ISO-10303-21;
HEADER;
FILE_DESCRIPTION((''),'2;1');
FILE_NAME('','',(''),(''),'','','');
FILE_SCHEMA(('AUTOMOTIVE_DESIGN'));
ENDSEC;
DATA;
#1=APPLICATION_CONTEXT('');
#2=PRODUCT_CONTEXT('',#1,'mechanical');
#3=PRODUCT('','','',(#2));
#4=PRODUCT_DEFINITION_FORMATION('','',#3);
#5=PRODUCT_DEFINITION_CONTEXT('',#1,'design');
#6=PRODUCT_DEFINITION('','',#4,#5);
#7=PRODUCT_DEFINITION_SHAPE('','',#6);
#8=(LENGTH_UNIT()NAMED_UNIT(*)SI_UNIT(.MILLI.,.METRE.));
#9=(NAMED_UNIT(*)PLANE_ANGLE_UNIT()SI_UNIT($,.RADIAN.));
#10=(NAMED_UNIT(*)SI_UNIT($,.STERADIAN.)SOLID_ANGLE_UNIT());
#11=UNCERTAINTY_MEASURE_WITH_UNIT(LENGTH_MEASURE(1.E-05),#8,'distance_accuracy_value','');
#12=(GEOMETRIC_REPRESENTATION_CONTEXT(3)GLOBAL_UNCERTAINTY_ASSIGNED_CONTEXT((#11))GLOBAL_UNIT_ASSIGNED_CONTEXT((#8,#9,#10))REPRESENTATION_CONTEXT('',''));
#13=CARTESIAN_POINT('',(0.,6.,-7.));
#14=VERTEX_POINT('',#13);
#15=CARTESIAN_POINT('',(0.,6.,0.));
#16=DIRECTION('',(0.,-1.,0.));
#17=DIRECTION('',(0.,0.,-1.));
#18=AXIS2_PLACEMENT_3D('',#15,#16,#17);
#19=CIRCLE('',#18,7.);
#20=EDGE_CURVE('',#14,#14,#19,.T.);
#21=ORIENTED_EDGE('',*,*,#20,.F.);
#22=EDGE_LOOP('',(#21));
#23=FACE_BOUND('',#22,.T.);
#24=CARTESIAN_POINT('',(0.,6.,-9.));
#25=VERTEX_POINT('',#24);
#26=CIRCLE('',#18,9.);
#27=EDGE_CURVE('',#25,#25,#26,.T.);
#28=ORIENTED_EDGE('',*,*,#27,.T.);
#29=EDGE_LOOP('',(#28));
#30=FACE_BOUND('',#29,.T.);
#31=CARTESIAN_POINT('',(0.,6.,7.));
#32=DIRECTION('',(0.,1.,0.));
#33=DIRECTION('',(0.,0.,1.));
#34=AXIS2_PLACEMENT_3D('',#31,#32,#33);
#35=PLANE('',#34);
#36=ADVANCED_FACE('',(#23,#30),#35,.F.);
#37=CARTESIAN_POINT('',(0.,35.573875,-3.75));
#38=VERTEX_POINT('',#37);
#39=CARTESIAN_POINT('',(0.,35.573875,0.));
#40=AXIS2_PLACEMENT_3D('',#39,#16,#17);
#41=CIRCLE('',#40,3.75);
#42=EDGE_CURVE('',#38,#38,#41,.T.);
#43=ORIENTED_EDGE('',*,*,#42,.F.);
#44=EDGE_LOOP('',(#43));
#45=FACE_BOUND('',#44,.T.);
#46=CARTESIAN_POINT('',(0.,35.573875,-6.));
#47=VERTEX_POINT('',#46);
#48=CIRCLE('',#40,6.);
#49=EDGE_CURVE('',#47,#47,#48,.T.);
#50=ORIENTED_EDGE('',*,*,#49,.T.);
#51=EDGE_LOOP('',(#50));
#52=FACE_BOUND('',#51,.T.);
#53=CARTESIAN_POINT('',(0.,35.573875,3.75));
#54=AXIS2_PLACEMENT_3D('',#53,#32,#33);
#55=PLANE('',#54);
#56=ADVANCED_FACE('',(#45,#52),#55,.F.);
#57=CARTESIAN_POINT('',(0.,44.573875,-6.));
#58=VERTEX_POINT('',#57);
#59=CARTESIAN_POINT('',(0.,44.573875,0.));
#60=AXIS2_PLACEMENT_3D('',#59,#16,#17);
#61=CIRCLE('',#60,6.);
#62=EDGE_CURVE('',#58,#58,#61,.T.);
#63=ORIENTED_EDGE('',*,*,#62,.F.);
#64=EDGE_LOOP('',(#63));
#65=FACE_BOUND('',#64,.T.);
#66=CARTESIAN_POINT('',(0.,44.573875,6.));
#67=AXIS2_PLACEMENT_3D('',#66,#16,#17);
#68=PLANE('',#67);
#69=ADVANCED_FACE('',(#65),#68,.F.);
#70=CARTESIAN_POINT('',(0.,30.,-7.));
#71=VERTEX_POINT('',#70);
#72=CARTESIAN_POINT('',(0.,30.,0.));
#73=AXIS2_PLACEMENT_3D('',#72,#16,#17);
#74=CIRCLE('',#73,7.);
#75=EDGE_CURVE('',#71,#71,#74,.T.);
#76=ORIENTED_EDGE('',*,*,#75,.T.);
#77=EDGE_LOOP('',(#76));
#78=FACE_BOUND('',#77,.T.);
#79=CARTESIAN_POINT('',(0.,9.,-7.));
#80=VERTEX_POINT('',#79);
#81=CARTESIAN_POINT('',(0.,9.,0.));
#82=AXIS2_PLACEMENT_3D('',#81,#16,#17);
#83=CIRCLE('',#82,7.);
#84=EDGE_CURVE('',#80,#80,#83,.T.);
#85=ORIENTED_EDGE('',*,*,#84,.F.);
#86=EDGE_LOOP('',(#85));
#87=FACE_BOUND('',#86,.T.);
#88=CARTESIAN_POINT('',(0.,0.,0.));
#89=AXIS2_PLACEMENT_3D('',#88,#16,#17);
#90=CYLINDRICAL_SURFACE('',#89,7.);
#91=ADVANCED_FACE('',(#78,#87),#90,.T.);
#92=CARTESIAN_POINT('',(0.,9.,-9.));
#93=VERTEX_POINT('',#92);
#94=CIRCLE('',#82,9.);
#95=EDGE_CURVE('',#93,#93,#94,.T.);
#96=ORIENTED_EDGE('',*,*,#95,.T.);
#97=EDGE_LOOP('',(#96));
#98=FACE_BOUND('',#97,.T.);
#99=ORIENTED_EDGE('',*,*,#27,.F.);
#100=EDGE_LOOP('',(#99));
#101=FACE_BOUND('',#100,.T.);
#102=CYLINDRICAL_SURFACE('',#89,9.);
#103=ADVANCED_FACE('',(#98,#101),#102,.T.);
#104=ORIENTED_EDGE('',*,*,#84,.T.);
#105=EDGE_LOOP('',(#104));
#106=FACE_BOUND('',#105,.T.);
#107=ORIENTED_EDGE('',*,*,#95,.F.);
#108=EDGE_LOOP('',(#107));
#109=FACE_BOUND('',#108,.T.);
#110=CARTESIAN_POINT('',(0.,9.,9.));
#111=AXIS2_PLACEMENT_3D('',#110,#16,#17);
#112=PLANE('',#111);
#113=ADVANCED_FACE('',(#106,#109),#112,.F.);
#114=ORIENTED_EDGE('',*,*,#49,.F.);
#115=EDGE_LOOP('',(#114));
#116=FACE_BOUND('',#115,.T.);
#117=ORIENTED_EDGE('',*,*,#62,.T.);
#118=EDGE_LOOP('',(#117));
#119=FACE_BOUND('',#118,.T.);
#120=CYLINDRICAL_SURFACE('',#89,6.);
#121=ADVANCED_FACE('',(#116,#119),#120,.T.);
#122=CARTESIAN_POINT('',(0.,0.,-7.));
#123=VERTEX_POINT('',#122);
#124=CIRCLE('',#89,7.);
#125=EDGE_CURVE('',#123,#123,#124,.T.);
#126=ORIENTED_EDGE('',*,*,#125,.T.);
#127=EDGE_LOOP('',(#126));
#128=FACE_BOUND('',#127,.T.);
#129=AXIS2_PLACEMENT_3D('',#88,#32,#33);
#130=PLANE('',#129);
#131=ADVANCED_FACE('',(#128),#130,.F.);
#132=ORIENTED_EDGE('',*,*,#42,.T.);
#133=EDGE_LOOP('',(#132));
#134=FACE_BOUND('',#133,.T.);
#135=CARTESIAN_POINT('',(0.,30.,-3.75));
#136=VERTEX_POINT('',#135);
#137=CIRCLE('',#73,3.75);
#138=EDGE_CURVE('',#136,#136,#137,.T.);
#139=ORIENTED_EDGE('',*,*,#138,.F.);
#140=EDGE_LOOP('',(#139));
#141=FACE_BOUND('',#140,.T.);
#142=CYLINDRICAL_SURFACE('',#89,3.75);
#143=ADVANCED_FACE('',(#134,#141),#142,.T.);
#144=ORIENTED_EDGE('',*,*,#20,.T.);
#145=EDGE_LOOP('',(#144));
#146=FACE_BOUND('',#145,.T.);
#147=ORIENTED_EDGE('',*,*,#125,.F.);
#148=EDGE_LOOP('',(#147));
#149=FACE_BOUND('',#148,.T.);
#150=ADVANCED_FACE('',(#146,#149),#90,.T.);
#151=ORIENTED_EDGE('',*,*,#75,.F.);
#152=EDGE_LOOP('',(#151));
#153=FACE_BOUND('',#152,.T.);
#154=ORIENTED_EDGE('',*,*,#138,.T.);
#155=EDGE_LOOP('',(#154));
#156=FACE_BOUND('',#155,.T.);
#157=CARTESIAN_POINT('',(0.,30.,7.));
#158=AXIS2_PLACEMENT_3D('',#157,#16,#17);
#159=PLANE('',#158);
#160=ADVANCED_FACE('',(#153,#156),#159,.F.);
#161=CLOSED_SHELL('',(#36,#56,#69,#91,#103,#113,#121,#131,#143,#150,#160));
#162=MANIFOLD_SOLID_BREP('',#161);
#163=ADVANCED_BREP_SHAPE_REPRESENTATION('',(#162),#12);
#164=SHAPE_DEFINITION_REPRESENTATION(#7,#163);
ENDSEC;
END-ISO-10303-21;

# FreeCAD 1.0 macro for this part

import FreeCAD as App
import Part
import Sketcher

doc = App.newDocument("Part")
params = doc.addObject("Spreadsheet::Sheet", "Params")
for row, (alias, value) in enumerate([
    ("sketch1_width", "9 mm"),
    ("sketch1_width2", "21 mm"),
    ("sketch1_width3", "3 mm"),
    ("sketch1_width4", "6 mm"),
    ("sketch1_height", "7 mm"),
    ("revolution_angle", "360 deg"),
], start=1):
    params.set(f"A{row}", alias)
    params.set(f"B{row}", "=" + value)
    params.setAlias(f"B{row}", alias)

body = doc.addObject("PartDesign::Body", "Body")

# Sketch on YZ plane
sketch1 = body.newObject("Sketcher::SketchObject", "Sketch")
sketch1.AttachmentSupport = (doc.getObject("YZ_Plane"), [""])
sketch1.MapMode = "FlatFace"
sketch1.addGeometry(Part.LineSegment(App.Vector(0, 7, 0), App.Vector(0, 0, 0)), False)
sketch1.addGeometry(Part.LineSegment(App.Vector(0, 0, 0), App.Vector(44.6, 0, 0)), False)
sketch1.addGeometry(Part.LineSegment(App.Vector(44.6, 0, 0), App.Vector(44.6, 6, 0)), False)
sketch1.addGeometry(Part.LineSegment(App.Vector(44.6, 6, 0), App.Vector(35.6, 6, 0)), False)
sketch1.addGeometry(Part.LineSegment(App.Vector(35.6, 6, 0), App.Vector(35.6, 3.8, 0)), False)
sketch1.addGeometry(Part.LineSegment(App.Vector(35.6, 3.8, 0), App.Vector(30, 3.8, 0)), False)
sketch1.addGeometry(Part.LineSegment(App.Vector(30, 3.8, 0), App.Vector(30, 7, 0)), False)
sketch1.addGeometry(Part.LineSegment(App.Vector(30, 7, 0), App.Vector(9, 7, 0)), False)
sketch1.addGeometry(Part.LineSegment(App.Vector(9, 7, 0), App.Vector(9, 9, 0)), False)
sketch1.addGeometry(Part.LineSegment(App.Vector(9, 9, 0), App.Vector(6, 9, 0)), False)
sketch1.addGeometry(Part.LineSegment(App.Vector(6, 9, 0), App.Vector(6, 7, 0)), False)
sketch1.addGeometry(Part.LineSegment(App.Vector(6, 7, 0), App.Vector(0, 7, 0)), False)
sketch1.addConstraint(Sketcher.Constraint("Coincident", 0, 2, 1, 1))
sketch1.addConstraint(Sketcher.Constraint("Coincident", 1, 2, 2, 1))
sketch1.addConstraint(Sketcher.Constraint("Coincident", 2, 2, 3, 1))
sketch1.addConstraint(Sketcher.Constraint("Coincident", 3, 2, 4, 1))
sketch1.addConstraint(Sketcher.Constraint("Coincident", 4, 2, 5, 1))
sketch1.addConstraint(Sketcher.Constraint("Coincident", 5, 2, 6, 1))
sketch1.addConstraint(Sketcher.Constraint("Coincident", 6, 2, 7, 1))
sketch1.addConstraint(Sketcher.Constraint("Coincident", 7, 2, 8, 1))
sketch1.addConstraint(Sketcher.Constraint("Coincident", 8, 2, 9, 1))
sketch1.addConstraint(Sketcher.Constraint("Coincident", 9, 2, 10, 1))
sketch1.addConstraint(Sketcher.Constraint("Coincident", 10, 2, 11, 1))
sketch1.addConstraint(Sketcher.Constraint("Coincident", 11, 2, 0, 1))
sketch1.addConstraint(Sketcher.Constraint("Vertical", 0))
sketch1.addConstraint(Sketcher.Constraint("Horizontal", 1))
sketch1.addConstraint(Sketcher.Constraint("Vertical", 2))
sketch1.addConstraint(Sketcher.Constraint("Horizontal", 3))
sketch1.addConstraint(Sketcher.Constraint("Vertical", 4))
sketch1.addConstraint(Sketcher.Constraint("Horizontal", 5))
sketch1.addConstraint(Sketcher.Constraint("Vertical", 6))
sketch1.addConstraint(Sketcher.Constraint("Horizontal", 7))
sketch1.addConstraint(Sketcher.Constraint("Vertical", 8))
sketch1.addConstraint(Sketcher.Constraint("Horizontal", 9))
sketch1.addConstraint(Sketcher.Constraint("Vertical", 10))
sketch1.addConstraint(Sketcher.Constraint("Horizontal", 11))
sketch1.addConstraint(Sketcher.Constraint("Coincident", 0, 2, -1, 1))
sketch1.addConstraint(Sketcher.Constraint("Horizontal", 7, 2, 10, 2))
sketch1.addConstraint(Sketcher.Constraint("Equal", 11, 2))
sketch1.addConstraint(Sketcher.Constraint("DistanceX", 3, 2, 3, 1, 9.0))
sketch1.addConstraint(Sketcher.Constraint("DistanceX", 7, 2, 7, 1, 21.0))
sketch1.addConstraint(Sketcher.Constraint("DistanceX", 9, 2, 9, 1, 3.0))
sketch1.addConstraint(Sketcher.Constraint("DistanceX", 11, 2, 11, 1, 6.0))
sketch1.addConstraint(Sketcher.Constraint("DistanceY", 0, 2, 0, 1, 7.0))
sketch1.addConstraint(Sketcher.Constraint("DistanceY", 8, 1, 8, 2, 2.0))
sketch1.addConstraint(Sketcher.Constraint("DistanceY", 4, 2, 4, 1, 2.25))
sketch1.addConstraint(Sketcher.Constraint("DistanceX", 1, 1, 1, 2, 44.573875))
sketch1.setExpression("Constraints[27]", "Params.sketch1_width")
sketch1.setExpression("Constraints[28]", "Params.sketch1_width2")
sketch1.setExpression("Constraints[29]", "Params.sketch1_width3")
sketch1.setExpression("Constraints[30]", "Params.sketch1_width4")
sketch1.setExpression("Constraints[31]", "Params.sketch1_height")
revolution = body.newObject("PartDesign::Revolution", "Revolution")
revolution.Profile = sketch1
revolution.ReferenceAxis = (sketch1, ["H_Axis"])
revolution.setExpression("Angle", "Params.revolution_angle")

doc.recompute()
